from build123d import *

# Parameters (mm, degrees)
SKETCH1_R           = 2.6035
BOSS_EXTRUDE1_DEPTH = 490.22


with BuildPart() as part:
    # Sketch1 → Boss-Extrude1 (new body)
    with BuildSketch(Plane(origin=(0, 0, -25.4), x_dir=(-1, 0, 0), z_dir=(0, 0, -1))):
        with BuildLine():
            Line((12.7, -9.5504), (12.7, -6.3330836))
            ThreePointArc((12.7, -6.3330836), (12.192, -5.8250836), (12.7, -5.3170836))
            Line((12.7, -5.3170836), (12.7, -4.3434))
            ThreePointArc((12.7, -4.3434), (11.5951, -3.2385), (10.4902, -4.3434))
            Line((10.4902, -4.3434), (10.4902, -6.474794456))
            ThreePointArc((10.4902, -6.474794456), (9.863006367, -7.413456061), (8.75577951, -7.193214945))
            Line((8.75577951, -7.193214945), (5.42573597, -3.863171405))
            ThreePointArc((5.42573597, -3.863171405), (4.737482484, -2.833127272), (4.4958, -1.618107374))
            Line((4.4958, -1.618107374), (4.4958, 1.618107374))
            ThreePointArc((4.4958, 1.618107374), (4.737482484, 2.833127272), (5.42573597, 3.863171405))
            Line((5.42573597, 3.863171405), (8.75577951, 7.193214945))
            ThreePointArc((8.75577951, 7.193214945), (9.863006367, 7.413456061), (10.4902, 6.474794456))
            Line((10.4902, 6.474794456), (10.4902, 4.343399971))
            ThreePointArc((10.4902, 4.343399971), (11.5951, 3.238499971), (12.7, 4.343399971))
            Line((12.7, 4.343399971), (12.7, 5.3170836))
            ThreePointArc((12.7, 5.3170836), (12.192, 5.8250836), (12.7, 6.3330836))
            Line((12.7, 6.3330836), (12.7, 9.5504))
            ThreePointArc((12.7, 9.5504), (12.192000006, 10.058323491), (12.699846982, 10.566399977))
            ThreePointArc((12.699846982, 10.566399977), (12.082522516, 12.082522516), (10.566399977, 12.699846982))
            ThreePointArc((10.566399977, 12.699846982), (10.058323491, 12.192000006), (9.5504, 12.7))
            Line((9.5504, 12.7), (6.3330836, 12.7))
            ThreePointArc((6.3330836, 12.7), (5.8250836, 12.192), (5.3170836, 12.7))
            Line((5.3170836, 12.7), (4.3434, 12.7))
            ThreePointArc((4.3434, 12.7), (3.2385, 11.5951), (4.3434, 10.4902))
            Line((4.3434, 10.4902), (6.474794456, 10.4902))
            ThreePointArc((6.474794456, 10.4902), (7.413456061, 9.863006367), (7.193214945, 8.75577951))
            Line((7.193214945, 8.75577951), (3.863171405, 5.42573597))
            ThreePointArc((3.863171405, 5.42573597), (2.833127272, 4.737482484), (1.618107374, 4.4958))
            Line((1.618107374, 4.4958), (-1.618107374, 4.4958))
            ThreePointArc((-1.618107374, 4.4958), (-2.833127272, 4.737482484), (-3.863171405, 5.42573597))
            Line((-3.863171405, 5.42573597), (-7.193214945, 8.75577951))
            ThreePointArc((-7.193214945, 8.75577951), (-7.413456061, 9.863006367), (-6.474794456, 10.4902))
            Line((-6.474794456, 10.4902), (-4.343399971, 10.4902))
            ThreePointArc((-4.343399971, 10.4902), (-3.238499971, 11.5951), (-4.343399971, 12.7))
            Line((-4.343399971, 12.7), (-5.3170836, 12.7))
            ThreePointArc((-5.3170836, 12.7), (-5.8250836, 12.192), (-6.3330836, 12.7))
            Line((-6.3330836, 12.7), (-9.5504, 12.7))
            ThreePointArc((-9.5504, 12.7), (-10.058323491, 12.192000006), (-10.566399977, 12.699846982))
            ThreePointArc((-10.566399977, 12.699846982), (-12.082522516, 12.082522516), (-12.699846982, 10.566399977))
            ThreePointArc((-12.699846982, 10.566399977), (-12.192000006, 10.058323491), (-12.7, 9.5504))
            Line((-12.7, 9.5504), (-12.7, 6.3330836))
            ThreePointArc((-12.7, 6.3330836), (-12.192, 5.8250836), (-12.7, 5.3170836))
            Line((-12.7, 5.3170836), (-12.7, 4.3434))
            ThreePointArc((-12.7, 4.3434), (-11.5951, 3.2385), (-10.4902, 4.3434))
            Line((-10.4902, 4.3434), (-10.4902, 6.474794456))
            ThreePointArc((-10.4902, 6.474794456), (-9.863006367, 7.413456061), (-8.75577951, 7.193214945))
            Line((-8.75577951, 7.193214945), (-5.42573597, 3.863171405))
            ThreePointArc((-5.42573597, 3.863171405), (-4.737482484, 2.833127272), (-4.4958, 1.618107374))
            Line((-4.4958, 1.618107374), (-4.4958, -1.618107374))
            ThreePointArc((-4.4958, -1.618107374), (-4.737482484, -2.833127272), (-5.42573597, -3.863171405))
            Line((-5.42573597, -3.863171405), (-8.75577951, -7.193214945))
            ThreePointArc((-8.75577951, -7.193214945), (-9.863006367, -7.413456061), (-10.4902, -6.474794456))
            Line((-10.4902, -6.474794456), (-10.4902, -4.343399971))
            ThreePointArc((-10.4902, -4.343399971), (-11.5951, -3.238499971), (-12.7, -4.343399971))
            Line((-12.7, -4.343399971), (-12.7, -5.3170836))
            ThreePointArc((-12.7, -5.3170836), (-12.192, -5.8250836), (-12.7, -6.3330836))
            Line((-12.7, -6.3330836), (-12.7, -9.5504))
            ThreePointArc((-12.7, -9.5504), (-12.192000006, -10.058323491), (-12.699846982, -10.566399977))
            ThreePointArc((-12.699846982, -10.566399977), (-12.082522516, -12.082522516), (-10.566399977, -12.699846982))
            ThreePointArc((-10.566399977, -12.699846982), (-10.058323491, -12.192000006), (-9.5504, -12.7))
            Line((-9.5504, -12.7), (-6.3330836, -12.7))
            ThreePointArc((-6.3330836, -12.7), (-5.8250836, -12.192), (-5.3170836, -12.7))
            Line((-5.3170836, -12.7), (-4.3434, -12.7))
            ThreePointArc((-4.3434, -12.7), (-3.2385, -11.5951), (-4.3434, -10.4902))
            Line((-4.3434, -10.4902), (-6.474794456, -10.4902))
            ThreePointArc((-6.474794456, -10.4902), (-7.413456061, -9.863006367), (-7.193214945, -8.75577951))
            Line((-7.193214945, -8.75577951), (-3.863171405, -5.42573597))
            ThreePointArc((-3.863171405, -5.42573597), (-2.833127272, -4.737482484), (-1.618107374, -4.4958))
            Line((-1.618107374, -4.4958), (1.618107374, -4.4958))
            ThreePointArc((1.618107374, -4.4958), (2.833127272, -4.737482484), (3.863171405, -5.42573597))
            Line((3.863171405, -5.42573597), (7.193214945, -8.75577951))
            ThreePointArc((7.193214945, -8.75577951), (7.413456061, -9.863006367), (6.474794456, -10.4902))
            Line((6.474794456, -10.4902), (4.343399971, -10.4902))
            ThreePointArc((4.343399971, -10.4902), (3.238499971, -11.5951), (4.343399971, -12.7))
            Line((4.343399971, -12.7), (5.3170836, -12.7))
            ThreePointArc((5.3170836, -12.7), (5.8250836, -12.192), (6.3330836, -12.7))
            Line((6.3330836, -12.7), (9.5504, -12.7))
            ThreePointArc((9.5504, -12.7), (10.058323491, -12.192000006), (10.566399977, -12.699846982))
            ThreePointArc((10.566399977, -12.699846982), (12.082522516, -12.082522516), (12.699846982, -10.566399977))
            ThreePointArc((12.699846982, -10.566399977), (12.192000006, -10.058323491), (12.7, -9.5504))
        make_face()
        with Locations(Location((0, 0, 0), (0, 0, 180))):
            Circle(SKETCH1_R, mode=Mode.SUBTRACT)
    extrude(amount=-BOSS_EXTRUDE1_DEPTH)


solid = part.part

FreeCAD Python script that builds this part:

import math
import FreeCAD as App
import Part
import Sketcher

V = App.Vector
Q = App.Units.Quantity

doc = App.newDocument("Part")
body = doc.addObject("PartDesign::Body", "Body")

# Sketch on XY plane
sketch1 = body.newObject("Sketcher::SketchObject", "Sketch")
sketch1.AttachmentSupport = (doc.getObject("XY_Plane"), [""])
sketch1.MapMode = "FlatFace"
sketch1.AttachmentOffset = App.Placement(V(0, 0, -1 * 25.4), App.Rotation())
sketch1.addGeometry([
    Part.LineSegment(V(-12.7, -9.6, 0), V(-12.7, -6.3, 0)),  # 0
    Part.ArcOfCircle(Part.Circle(V(-12.7, -5.8, 0), V(0, 0, 1), 0.5), math.radians(-90), math.radians(90)),  # 1
    Part.LineSegment(V(-12.7, -5.3, 0), V(-12.7, -4.3, 0)),  # 2
    Part.ArcOfCircle(Part.Circle(V(-11.6, -4.3, 0), V(0, 0, 1), 1.1), math.radians(0), math.radians(180)),  # 3
    Part.LineSegment(V(-10.5, -4.3, 0), V(-10.5, -6.5, 0)),  # 4
    Part.ArcOfCircle(Part.Circle(V(-9.5, -6.5, 0), V(0, 0, 1), 1), math.radians(180), math.radians(315)),  # 5
    Part.LineSegment(V(-8.8, -7.2, 0), V(-5.4, -3.9, 0)),  # 6
    Part.ArcOfCircle(Part.Circle(V(-7.7, -1.6, 0), V(0, 0, 1), 3.2), math.radians(-45), math.radians(0)),  # 7
    Part.LineSegment(V(-4.5, -1.6, 0), V(-4.5, 1.6, 0)),  # 8
    Part.ArcOfCircle(Part.Circle(V(-7.7, 1.6, 0), V(0, 0, 1), 3.2), math.radians(0), math.radians(45)),  # 9
    Part.LineSegment(V(-5.4, 3.9, 0), V(-8.8, 7.2, 0)),  # 10
    Part.ArcOfCircle(Part.Circle(V(-9.5, 6.5, 0), V(0, 0, 1), 1), math.radians(45), math.radians(180)),  # 11
    Part.LineSegment(V(-10.5, 6.5, 0), V(-10.5, 4.3, 0)),  # 12
    Part.ArcOfCircle(Part.Circle(V(-11.6, 4.3, 0), V(0, 0, 1), 1.1), math.radians(180), math.radians(360)),  # 13
    Part.LineSegment(V(-12.7, 4.3, 0), V(-12.7, 5.3, 0)),  # 14
    Part.ArcOfCircle(Part.Circle(V(-12.7, 5.8, 0), V(0, 0, 1), 0.5), math.radians(-90), math.radians(90)),  # 15
    Part.LineSegment(V(-12.7, 6.3, 0), V(-12.7, 9.6, 0)),  # 16
    Part.ArcOfCircle(Part.Circle(V(-12.7, 10.1, 0), V(0, 0, 1), 0.5), math.radians(-90), math.radians(90)),  # 17
    Part.ArcOfCircle(Part.Circle(V(-10.6, 10.6, 0), V(0, 0, 1), 2.1), math.radians(89), math.radians(181)),  # 18
    Part.ArcOfCircle(Part.Circle(V(-10.1, 12.7, 0), V(0, 0, 1), 0.5), math.radians(-180), math.radians(0)),  # 19
    Part.LineSegment(V(-9.6, 12.7, 0), V(-6.3, 12.7, 0)),  # 20
    Part.ArcOfCircle(Part.Circle(V(-5.8, 12.7, 0), V(0, 0, 1), 0.5), math.radians(180), math.radians(360)),  # 21
    Part.LineSegment(V(-5.3, 12.7, 0), V(-4.3, 12.7, 0)),  # 22
    Part.ArcOfCircle(Part.Circle(V(-4.3, 11.6, 0), V(0, 0, 1), 1.1), math.radians(-90), math.radians(90)),  # 23
    Part.LineSegment(V(-4.3, 10.5, 0), V(-6.5, 10.5, 0)),  # 24
    Part.ArcOfCircle(Part.Circle(V(-6.5, 9.5, 0), V(0, 0, 1), 1), math.radians(90), math.radians(225)),  # 25
    Part.LineSegment(V(-7.2, 8.8, 0), V(-3.9, 5.4, 0)),  # 26
    Part.ArcOfCircle(Part.Circle(V(-1.6, 7.7, 0), V(0, 0, 1), 3.2), math.radians(-135), math.radians(-90)),  # 27
    Part.LineSegment(V(-1.6, 4.5, 0), V(1.6, 4.5, 0)),  # 28
    Part.ArcOfCircle(Part.Circle(V(1.6, 7.7, 0), V(0, 0, 1), 3.2), math.radians(-90), math.radians(-45)),  # 29
    Part.LineSegment(V(3.9, 5.4, 0), V(7.2, 8.8, 0)),  # 30
    Part.ArcOfCircle(Part.Circle(V(6.5, 9.5, 0), V(0, 0, 1), 1), math.radians(-45), math.radians(90)),  # 31
    Part.LineSegment(V(6.5, 10.5, 0), V(4.3, 10.5, 0)),  # 32
    Part.ArcOfCircle(Part.Circle(V(4.3, 11.6, 0), V(0, 0, 1), 1.1), math.radians(90), math.radians(270)),  # 33
    Part.LineSegment(V(4.3, 12.7, 0), V(5.3, 12.7, 0)),  # 34
    Part.ArcOfCircle(Part.Circle(V(5.8, 12.7, 0), V(0, 0, 1), 0.5), math.radians(180), math.radians(360)),  # 35
    Part.LineSegment(V(6.3, 12.7, 0), V(9.6, 12.7, 0)),  # 36
    Part.ArcOfCircle(Part.Circle(V(10.1, 12.7, 0), V(0, 0, 1), 0.5), math.radians(180), math.radians(360)),  # 37
    Part.ArcOfCircle(Part.Circle(V(10.6, 10.6, 0), V(0, 0, 1), 2.1), math.radians(-1), math.radians(91)),  # 38
    Part.ArcOfCircle(Part.Circle(V(12.7, 10.1, 0), V(0, 0, 1), 0.5), math.radians(90), math.radians(270)),  # 39
    Part.LineSegment(V(12.7, 9.6, 0), V(12.7, 6.3, 0)),  # 40
    Part.ArcOfCircle(Part.Circle(V(12.7, 5.8, 0), V(0, 0, 1), 0.5), math.radians(90), math.radians(270)),  # 41
    Part.LineSegment(V(12.7, 5.3, 0), V(12.7, 4.3, 0)),  # 42
    Part.ArcOfCircle(Part.Circle(V(11.6, 4.3, 0), V(0, 0, 1), 1.1), math.radians(180), math.radians(360)),  # 43
    Part.LineSegment(V(10.5, 4.3, 0), V(10.5, 6.5, 0)),  # 44
    Part.ArcOfCircle(Part.Circle(V(9.5, 6.5, 0), V(0, 0, 1), 1), math.radians(0), math.radians(135)),  # 45
    Part.LineSegment(V(8.8, 7.2, 0), V(5.4, 3.9, 0)),  # 46
    Part.ArcOfCircle(Part.Circle(V(7.7, 1.6, 0), V(0, 0, 1), 3.2), math.radians(135), math.radians(180)),  # 47
    Part.LineSegment(V(4.5, 1.6, 0), V(4.5, -1.6, 0)),  # 48
    Part.ArcOfCircle(Part.Circle(V(7.7, -1.6, 0), V(0, 0, 1), 3.2), math.radians(180), math.radians(225)),  # 49
    Part.LineSegment(V(5.4, -3.9, 0), V(8.8, -7.2, 0)),  # 50
    Part.ArcOfCircle(Part.Circle(V(9.5, -6.5, 0), V(0, 0, 1), 1), math.radians(-135), math.radians(0)),  # 51
    Part.LineSegment(V(10.5, -6.5, 0), V(10.5, -4.3, 0)),  # 52
    Part.ArcOfCircle(Part.Circle(V(11.6, -4.3, 0), V(0, 0, 1), 1.1), math.radians(0), math.radians(180)),  # 53
    Part.LineSegment(V(12.7, -4.3, 0), V(12.7, -5.3, 0)),  # 54
    Part.ArcOfCircle(Part.Circle(V(12.7, -5.8, 0), V(0, 0, 1), 0.5), math.radians(90), math.radians(270)),  # 55
    Part.LineSegment(V(12.7, -6.3, 0), V(12.7, -9.6, 0)),  # 56
    Part.ArcOfCircle(Part.Circle(V(12.7, -10.1, 0), V(0, 0, 1), 0.5), math.radians(90), math.radians(270)),  # 57
    Part.ArcOfCircle(Part.Circle(V(10.6, -10.6, 0), V(0, 0, 1), 2.1), math.radians(-91), math.radians(1)),  # 58
    Part.ArcOfCircle(Part.Circle(V(10.1, -12.7, 0), V(0, 0, 1), 0.5), math.radians(0), math.radians(180)),  # 59
    Part.LineSegment(V(9.6, -12.7, 0), V(6.3, -12.7, 0)),  # 60
    Part.ArcOfCircle(Part.Circle(V(5.8, -12.7, 0), V(0, 0, 1), 0.5), math.radians(0), math.radians(180)),  # 61
    Part.LineSegment(V(5.3, -12.7, 0), V(4.3, -12.7, 0)),  # 62
    Part.ArcOfCircle(Part.Circle(V(4.3, -11.6, 0), V(0, 0, 1), 1.1), math.radians(90), math.radians(270)),  # 63
    Part.LineSegment(V(4.3, -10.5, 0), V(6.5, -10.5, 0)),  # 64
    Part.ArcOfCircle(Part.Circle(V(6.5, -9.5, 0), V(0, 0, 1), 1), math.radians(-90), math.radians(45)),  # 65
    Part.LineSegment(V(7.2, -8.8, 0), V(3.9, -5.4, 0)),  # 66
    Part.ArcOfCircle(Part.Circle(V(1.6, -7.7, 0), V(0, 0, 1), 3.2), math.radians(45), math.radians(90)),  # 67
    Part.LineSegment(V(1.6, -4.5, 0), V(-1.6, -4.5, 0)),  # 68
    Part.ArcOfCircle(Part.Circle(V(-1.6, -7.7, 0), V(0, 0, 1), 3.2), math.radians(90), math.radians(135)),  # 69
    Part.LineSegment(V(-3.9, -5.4, 0), V(-7.2, -8.8, 0)),  # 70
    Part.ArcOfCircle(Part.Circle(V(-6.5, -9.5, 0), V(0, 0, 1), 1), math.radians(135), math.radians(270)),  # 71
    Part.LineSegment(V(-6.5, -10.5, 0), V(-4.3, -10.5, 0)),  # 72
    Part.ArcOfCircle(Part.Circle(V(-4.3, -11.6, 0), V(0, 0, 1), 1.1), math.radians(-90), math.radians(90)),  # 73
    Part.LineSegment(V(-4.3, -12.7, 0), V(-5.3, -12.7, 0)),  # 74
    Part.ArcOfCircle(Part.Circle(V(-5.8, -12.7, 0), V(0, 0, 1), 0.5), math.radians(0), math.radians(180)),  # 75
    Part.LineSegment(V(-6.3, -12.7, 0), V(-9.6, -12.7, 0)),  # 76
    Part.ArcOfCircle(Part.Circle(V(-10.1, -12.7, 0), V(0, 0, 1), 0.5), math.radians(0), math.radians(180)),  # 77
    Part.ArcOfCircle(Part.Circle(V(-10.6, -10.6, 0), V(0, 0, 1), 2.1), math.radians(179), math.radians(271)),  # 78
    Part.ArcOfCircle(Part.Circle(V(-12.7, -10.1, 0), V(0, 0, 1), 0.5), math.radians(-90), math.radians(90)),  # 79
    Part.Circle(V(0, 0, 0), V(0, 0, 1), 2.6),  # 80
], False)
sketch1.addConstraint([
    Sketcher.Constraint("Coincident", 0, 2, 1, 1),
    Sketcher.Constraint("Coincident", 1, 2, 2, 1),
    Sketcher.Constraint("Tangent", 2, 2, 3, 2),
    Sketcher.Constraint("Tangent", 3, 1, 4, 1),
    Sketcher.Constraint("Tangent", 4, 2, 5, 1),
    Sketcher.Constraint("Tangent", 5, 2, 6, 1),
    Sketcher.Constraint("Tangent", 6, 2, 7, 1),
    Sketcher.Constraint("Tangent", 7, 2, 8, 1),
    Sketcher.Constraint("Tangent", 8, 2, 9, 1),
    Sketcher.Constraint("Tangent", 9, 2, 10, 1),
    Sketcher.Constraint("Tangent", 10, 2, 11, 1),
    Sketcher.Constraint("Tangent", 11, 2, 12, 1),
    Sketcher.Constraint("Tangent", 12, 2, 13, 2),
    Sketcher.Constraint("Tangent", 13, 1, 14, 1),
    Sketcher.Constraint("Coincident", 14, 2, 15, 1),
    Sketcher.Constraint("Coincident", 15, 2, 16, 1),
    Sketcher.Constraint("Coincident", 16, 2, 17, 1),
    Sketcher.Constraint("Coincident", 17, 2, 18, 2),
    Sketcher.Constraint("Coincident", 18, 1, 19, 1),
    Sketcher.Constraint("Coincident", 19, 2, 20, 1),
    Sketcher.Constraint("Coincident", 20, 2, 21, 1),
    Sketcher.Constraint("Coincident", 21, 2, 22, 1),
    Sketcher.Constraint("Tangent", 22, 2, 23, 2),
    Sketcher.Constraint("Tangent", 23, 1, 24, 1),
    Sketcher.Constraint("Tangent", 24, 2, 25, 1),
    Sketcher.Constraint("Tangent", 25, 2, 26, 1),
    Sketcher.Constraint("Tangent", 26, 2, 27, 1),
    Sketcher.Constraint("Tangent", 27, 2, 28, 1),
    Sketcher.Constraint("Tangent", 28, 2, 29, 1),
    Sketcher.Constraint("Tangent", 29, 2, 30, 1),
    Sketcher.Constraint("Tangent", 30, 2, 31, 1),
    Sketcher.Constraint("Tangent", 31, 2, 32, 1),
    Sketcher.Constraint("Tangent", 32, 2, 33, 2),
    Sketcher.Constraint("Tangent", 33, 1, 34, 1),
    Sketcher.Constraint("Coincident", 34, 2, 35, 1),
    Sketcher.Constraint("Coincident", 35, 2, 36, 1),
    Sketcher.Constraint("Coincident", 36, 2, 37, 1),
    Sketcher.Constraint("Coincident", 37, 2, 38, 2),
    Sketcher.Constraint("Coincident", 38, 1, 39, 1),
    Sketcher.Constraint("Coincident", 39, 2, 40, 1),
    Sketcher.Constraint("Coincident", 40, 2, 41, 1),
    Sketcher.Constraint("Coincident", 41, 2, 42, 1),
    Sketcher.Constraint("Tangent", 42, 2, 43, 2),
    Sketcher.Constraint("Tangent", 43, 1, 44, 1),
    Sketcher.Constraint("Tangent", 44, 2, 45, 1),
    Sketcher.Constraint("Tangent", 45, 2, 46, 1),
    Sketcher.Constraint("Tangent", 46, 2, 47, 1),
    Sketcher.Constraint("Tangent", 47, 2, 48, 1),
    Sketcher.Constraint("Tangent", 48, 2, 49, 1),
    Sketcher.Constraint("Tangent", 49, 2, 50, 1),
    Sketcher.Constraint("Tangent", 50, 2, 51, 1),
    Sketcher.Constraint("Tangent", 51, 2, 52, 1),
    Sketcher.Constraint("Tangent", 52, 2, 53, 2),
    Sketcher.Constraint("Tangent", 53, 1, 54, 1),
    Sketcher.Constraint("Coincident", 54, 2, 55, 1),
    Sketcher.Constraint("Coincident", 55, 2, 56, 1),
    Sketcher.Constraint("Coincident", 56, 2, 57, 1),
    Sketcher.Constraint("Coincident", 57, 2, 58, 2),
    Sketcher.Constraint("Coincident", 58, 1, 59, 1),
    Sketcher.Constraint("Coincident", 59, 2, 60, 1),
    Sketcher.Constraint("Coincident", 60, 2, 61, 1),
    Sketcher.Constraint("Coincident", 61, 2, 62, 1),
    Sketcher.Constraint("Tangent", 62, 2, 63, 2),
    Sketcher.Constraint("Tangent", 63, 1, 64, 1),
    Sketcher.Constraint("Tangent", 64, 2, 65, 1),
    Sketcher.Constraint("Tangent", 65, 2, 66, 1),
    Sketcher.Constraint("Tangent", 66, 2, 67, 1),
    Sketcher.Constraint("Tangent", 67, 2, 68, 1),
    Sketcher.Constraint("Tangent", 68, 2, 69, 1),
    Sketcher.Constraint("Tangent", 69, 2, 70, 1),
    Sketcher.Constraint("Tangent", 70, 2, 71, 1),
    Sketcher.Constraint("Tangent", 71, 2, 72, 1),
    Sketcher.Constraint("Tangent", 72, 2, 73, 2),
    Sketcher.Constraint("Tangent", 73, 1, 74, 1),
    Sketcher.Constraint("Coincident", 74, 2, 75, 1),
    Sketcher.Constraint("Coincident", 75, 2, 76, 1),
    Sketcher.Constraint("Coincident", 76, 2, 77, 1),
    Sketcher.Constraint("Coincident", 77, 2, 78, 2),
    Sketcher.Constraint("Coincident", 78, 1, 79, 1),
    Sketcher.Constraint("Coincident", 79, 2, 0, 1),
    Sketcher.Constraint("Vertical", 0),
    Sketcher.Constraint("Vertical", 2),
    Sketcher.Constraint("Vertical", 4),
    Sketcher.Constraint("Vertical", 8),
    Sketcher.Constraint("Vertical", 12),
    Sketcher.Constraint("Vertical", 14),
    Sketcher.Constraint("Vertical", 16),
    Sketcher.Constraint("Horizontal", 20),
    Sketcher.Constraint("Horizontal", 22),
    Sketcher.Constraint("Horizontal", 24),
    Sketcher.Constraint("Horizontal", 28),
    Sketcher.Constraint("Horizontal", 32),
    Sketcher.Constraint("Horizontal", 34),
    Sketcher.Constraint("Horizontal", 36),
    Sketcher.Constraint("Vertical", 40),
    Sketcher.Constraint("Vertical", 42),
    Sketcher.Constraint("Vertical", 44),
    Sketcher.Constraint("Vertical", 48),
    Sketcher.Constraint("Vertical", 52),
    Sketcher.Constraint("Vertical", 54),
    Sketcher.Constraint("Vertical", 56),
    Sketcher.Constraint("Horizontal", 60),
    Sketcher.Constraint("Horizontal", 62),
    Sketcher.Constraint("Horizontal", 64),
    Sketcher.Constraint("Horizontal", 68),
    Sketcher.Constraint("Horizontal", 72),
    Sketcher.Constraint("Horizontal", 74),
    Sketcher.Constraint("Horizontal", 76),
    Sketcher.Constraint("Coincident", 80, 3, -1, 1),
    Sketcher.Constraint("Equal", 7, 9),
    Sketcher.Constraint("Equal", 5, 11),
    Sketcher.Constraint("Equal", 3, 13),
    Sketcher.Constraint("Equal", 1, 15),
    Sketcher.Constraint("Equal", 15, 17),
    Sketcher.Constraint("Equal", 17, 19),
    Sketcher.Constraint("Equal", 19, 21),
    Sketcher.Constraint("Equal", 13, 23),
    Sketcher.Constraint("Equal", 11, 25),
    Sketcher.Constraint("Equal", 9, 27),
    Sketcher.Constraint("Equal", 27, 29),
    Sketcher.Constraint("Equal", 25, 31),
    Sketcher.Constraint("Equal", 23, 33),
    Sketcher.Constraint("Equal", 21, 35),
    Sketcher.Constraint("Equal", 35, 37),
    Sketcher.Constraint("Equal", 18, 38),
    Sketcher.Constraint("Equal", 37, 39),
    Sketcher.Constraint("Equal", 39, 41),
    Sketcher.Constraint("Equal", 33, 43),
    Sketcher.Constraint("Equal", 31, 45),
    Sketcher.Constraint("Equal", 29, 47),
    Sketcher.Constraint("Equal", 47, 49),
    Sketcher.Constraint("Equal", 45, 51),
    Sketcher.Constraint("Equal", 43, 53),
    Sketcher.Constraint("Equal", 41, 55),
    Sketcher.Constraint("Equal", 55, 57),
    Sketcher.Constraint("Equal", 38, 58),
    Sketcher.Constraint("Equal", 57, 59),
    Sketcher.Constraint("Equal", 59, 61),
    Sketcher.Constraint("Equal", 53, 63),
    Sketcher.Constraint("Equal", 51, 65),
    Sketcher.Constraint("Equal", 49, 67),
    Sketcher.Constraint("Equal", 67, 69),
    Sketcher.Constraint("Equal", 65, 71),
    Sketcher.Constraint("Equal", 63, 73),
    Sketcher.Constraint("Equal", 61, 75),
    Sketcher.Constraint("Equal", 75, 77),
    Sketcher.Constraint("Equal", 58, 78),
    Sketcher.Constraint("Equal", 77, 79),
    Sketcher.Constraint("Symmetric", 1, 3, 41, 3, -1, 1),
    Sketcher.Constraint("Symmetric", 3, 3, 43, 3, -1, 1),
    Sketcher.Constraint("Symmetric", 7, 3, 47, 3, -1, 1),
    Sketcher.Constraint("Symmetric", 11, 3, 51, 3, -1, 1),
    Sketcher.Constraint("Symmetric", 15, 3, 55, 3, -1, 1),
    Sketcher.Constraint("Symmetric", 17, 3, 57, 3, -1, 1),
    Sketcher.Constraint("Symmetric", 18, 3, 58, 3, -1, 1),
    Sketcher.Constraint("Symmetric", 19, 3, 59, 3, -1, 1),
    Sketcher.Constraint("Symmetric", 21, 3, 61, 3, -1, 1),
    Sketcher.Constraint("Symmetric", 23, 3, 63, 3, -1, 1),
    Sketcher.Constraint("Symmetric", 27, 3, 67, 3, -1, 1),
    Sketcher.Constraint("Symmetric", 31, 3, 71, 3, -1, 1),
    Sketcher.Constraint("Symmetric", 35, 3, 75, 3, -1, 1),
    Sketcher.Constraint("Symmetric", 37, 3, 77, 3, -1, 1),
    Sketcher.Constraint("Symmetric", 38, 3, 78, 3, -1, 1),
    Sketcher.Constraint("Symmetric", 39, 3, 79, 3, -1, 1),
    Sketcher.Constraint("Symmetric", 25, 3, 31, 3, -2),
    Sketcher.Constraint("Symmetric", 21, 3, 35, 3, -2),
    Sketcher.Constraint("Symmetric", 19, 3, 37, 3, -2),
    Sketcher.Constraint("Symmetric", 18, 3, 38, 3, -2),
    Sketcher.Constraint("Symmetric", 17, 3, 39, 3, -2),
    Sketcher.Constraint("Symmetric", 15, 3, 41, 3, -2),
    Sketcher.Constraint("Symmetric", 13, 3, 43, 3, -2),
    Sketcher.Constraint("Symmetric", 10, 2, 45, 2, -2),
    Sketcher.Constraint("Symmetric", 6, 2, 49, 2, -2),
    Sketcher.Constraint("Symmetric", 66, 2, 69, 2, -2),
    Sketcher.Constraint("Perpendicular", 6, 10),
    Sketcher.Constraint("Parallel", 10, 26),
    Sketcher.Constraint("Perpendicular", 26, 30),
    Sketcher.Constraint("Horizontal", 19, 3, 21, 3),
    Sketcher.Constraint("Horizontal", 3, 3, 53, 3),
    Sketcher.Constraint("Horizontal", 37, 3, 19, 2),
    Sketcher.Constraint("Horizontal", 20, 2, 21, 2),
    Sketcher.Constraint("Horizontal", 34, 2, 35, 2),
    Sketcher.Constraint("Horizontal", 77, 3, 59, 2),
    Sketcher.Constraint("Horizontal", 74, 2, 75, 2),
    Sketcher.Constraint("Vertical", 15, 3, 17, 3),
    Sketcher.Constraint("Vertical", 33, 3, 63, 3),
    Sketcher.Constraint("Vertical", 23, 3, 73, 3),
    Sketcher.Constraint("Vertical", 79, 3, 0, 2),
    Sketcher.Constraint("Vertical", 0, 2, 1, 2),
    Sketcher.Constraint("Vertical", 14, 2, 15, 2),
    Sketcher.Constraint("Vertical", 57, 3, 39, 2),
    Sketcher.Constraint("Vertical", 54, 2, 55, 2),
    Sketcher.Constraint("Equal", 76, 0),
    Sketcher.Constraint("Equal", 74, 2),
    Sketcher.Constraint("Equal", 72, 4),
    Sketcher.Constraint("Equal", 68, 8),
    Sketcher.Constraint("Equal", 10, 26),
    Sketcher.Constraint("Radius", 1, Q("0.02 in")),
    Sketcher.Constraint("Radius", 5, Q("0.04 in")),
    Sketcher.Constraint("Diameter", 80, Q("0.205 in")),
    Sketcher.Constraint("Radius", 7, Q("0.125 in")),
    Sketcher.Constraint("Radius", 18, Q("0.083 in")),
    Sketcher.Constraint("DistanceX", 1, 3, -1, 1, Q("0.5 in")),
    Sketcher.Constraint("DistanceY", -1, 1, 19, 3, Q("0.5 in")),
    Sketcher.Constraint("Radius", 3, Q("0.0435 in")),
    Sketcher.Constraint("DistanceY", 3, 3, -1, 1, Q("0.171 in")),
    Sketcher.Constraint("DistanceX", 7, 3, -1, 1, Q("0.302 in")),
    Sketcher.Constraint("DistanceY", -1, 1, 17, 3, Q("0.396 in")),
    Sketcher.Constraint("DistanceX", 18, 3, -1, 1, Q("0.417 in")),
    Sketcher.Constraint("DistanceY", -1, 1, 18, 3, Q("0.417 in")),
    Sketcher.Constraint("DistanceX", 20, 1, 20, 2, Q("3.217316 mm")),
    Sketcher.Constraint("DistanceX", 24, 2, 24, 1, Q("2.131394 mm")),
])
pad1 = body.newObject("PartDesign::Pad", "Pad")
pad1.Profile = sketch1
pad1.Length = Q("19.3 in")

doc.recompute()
